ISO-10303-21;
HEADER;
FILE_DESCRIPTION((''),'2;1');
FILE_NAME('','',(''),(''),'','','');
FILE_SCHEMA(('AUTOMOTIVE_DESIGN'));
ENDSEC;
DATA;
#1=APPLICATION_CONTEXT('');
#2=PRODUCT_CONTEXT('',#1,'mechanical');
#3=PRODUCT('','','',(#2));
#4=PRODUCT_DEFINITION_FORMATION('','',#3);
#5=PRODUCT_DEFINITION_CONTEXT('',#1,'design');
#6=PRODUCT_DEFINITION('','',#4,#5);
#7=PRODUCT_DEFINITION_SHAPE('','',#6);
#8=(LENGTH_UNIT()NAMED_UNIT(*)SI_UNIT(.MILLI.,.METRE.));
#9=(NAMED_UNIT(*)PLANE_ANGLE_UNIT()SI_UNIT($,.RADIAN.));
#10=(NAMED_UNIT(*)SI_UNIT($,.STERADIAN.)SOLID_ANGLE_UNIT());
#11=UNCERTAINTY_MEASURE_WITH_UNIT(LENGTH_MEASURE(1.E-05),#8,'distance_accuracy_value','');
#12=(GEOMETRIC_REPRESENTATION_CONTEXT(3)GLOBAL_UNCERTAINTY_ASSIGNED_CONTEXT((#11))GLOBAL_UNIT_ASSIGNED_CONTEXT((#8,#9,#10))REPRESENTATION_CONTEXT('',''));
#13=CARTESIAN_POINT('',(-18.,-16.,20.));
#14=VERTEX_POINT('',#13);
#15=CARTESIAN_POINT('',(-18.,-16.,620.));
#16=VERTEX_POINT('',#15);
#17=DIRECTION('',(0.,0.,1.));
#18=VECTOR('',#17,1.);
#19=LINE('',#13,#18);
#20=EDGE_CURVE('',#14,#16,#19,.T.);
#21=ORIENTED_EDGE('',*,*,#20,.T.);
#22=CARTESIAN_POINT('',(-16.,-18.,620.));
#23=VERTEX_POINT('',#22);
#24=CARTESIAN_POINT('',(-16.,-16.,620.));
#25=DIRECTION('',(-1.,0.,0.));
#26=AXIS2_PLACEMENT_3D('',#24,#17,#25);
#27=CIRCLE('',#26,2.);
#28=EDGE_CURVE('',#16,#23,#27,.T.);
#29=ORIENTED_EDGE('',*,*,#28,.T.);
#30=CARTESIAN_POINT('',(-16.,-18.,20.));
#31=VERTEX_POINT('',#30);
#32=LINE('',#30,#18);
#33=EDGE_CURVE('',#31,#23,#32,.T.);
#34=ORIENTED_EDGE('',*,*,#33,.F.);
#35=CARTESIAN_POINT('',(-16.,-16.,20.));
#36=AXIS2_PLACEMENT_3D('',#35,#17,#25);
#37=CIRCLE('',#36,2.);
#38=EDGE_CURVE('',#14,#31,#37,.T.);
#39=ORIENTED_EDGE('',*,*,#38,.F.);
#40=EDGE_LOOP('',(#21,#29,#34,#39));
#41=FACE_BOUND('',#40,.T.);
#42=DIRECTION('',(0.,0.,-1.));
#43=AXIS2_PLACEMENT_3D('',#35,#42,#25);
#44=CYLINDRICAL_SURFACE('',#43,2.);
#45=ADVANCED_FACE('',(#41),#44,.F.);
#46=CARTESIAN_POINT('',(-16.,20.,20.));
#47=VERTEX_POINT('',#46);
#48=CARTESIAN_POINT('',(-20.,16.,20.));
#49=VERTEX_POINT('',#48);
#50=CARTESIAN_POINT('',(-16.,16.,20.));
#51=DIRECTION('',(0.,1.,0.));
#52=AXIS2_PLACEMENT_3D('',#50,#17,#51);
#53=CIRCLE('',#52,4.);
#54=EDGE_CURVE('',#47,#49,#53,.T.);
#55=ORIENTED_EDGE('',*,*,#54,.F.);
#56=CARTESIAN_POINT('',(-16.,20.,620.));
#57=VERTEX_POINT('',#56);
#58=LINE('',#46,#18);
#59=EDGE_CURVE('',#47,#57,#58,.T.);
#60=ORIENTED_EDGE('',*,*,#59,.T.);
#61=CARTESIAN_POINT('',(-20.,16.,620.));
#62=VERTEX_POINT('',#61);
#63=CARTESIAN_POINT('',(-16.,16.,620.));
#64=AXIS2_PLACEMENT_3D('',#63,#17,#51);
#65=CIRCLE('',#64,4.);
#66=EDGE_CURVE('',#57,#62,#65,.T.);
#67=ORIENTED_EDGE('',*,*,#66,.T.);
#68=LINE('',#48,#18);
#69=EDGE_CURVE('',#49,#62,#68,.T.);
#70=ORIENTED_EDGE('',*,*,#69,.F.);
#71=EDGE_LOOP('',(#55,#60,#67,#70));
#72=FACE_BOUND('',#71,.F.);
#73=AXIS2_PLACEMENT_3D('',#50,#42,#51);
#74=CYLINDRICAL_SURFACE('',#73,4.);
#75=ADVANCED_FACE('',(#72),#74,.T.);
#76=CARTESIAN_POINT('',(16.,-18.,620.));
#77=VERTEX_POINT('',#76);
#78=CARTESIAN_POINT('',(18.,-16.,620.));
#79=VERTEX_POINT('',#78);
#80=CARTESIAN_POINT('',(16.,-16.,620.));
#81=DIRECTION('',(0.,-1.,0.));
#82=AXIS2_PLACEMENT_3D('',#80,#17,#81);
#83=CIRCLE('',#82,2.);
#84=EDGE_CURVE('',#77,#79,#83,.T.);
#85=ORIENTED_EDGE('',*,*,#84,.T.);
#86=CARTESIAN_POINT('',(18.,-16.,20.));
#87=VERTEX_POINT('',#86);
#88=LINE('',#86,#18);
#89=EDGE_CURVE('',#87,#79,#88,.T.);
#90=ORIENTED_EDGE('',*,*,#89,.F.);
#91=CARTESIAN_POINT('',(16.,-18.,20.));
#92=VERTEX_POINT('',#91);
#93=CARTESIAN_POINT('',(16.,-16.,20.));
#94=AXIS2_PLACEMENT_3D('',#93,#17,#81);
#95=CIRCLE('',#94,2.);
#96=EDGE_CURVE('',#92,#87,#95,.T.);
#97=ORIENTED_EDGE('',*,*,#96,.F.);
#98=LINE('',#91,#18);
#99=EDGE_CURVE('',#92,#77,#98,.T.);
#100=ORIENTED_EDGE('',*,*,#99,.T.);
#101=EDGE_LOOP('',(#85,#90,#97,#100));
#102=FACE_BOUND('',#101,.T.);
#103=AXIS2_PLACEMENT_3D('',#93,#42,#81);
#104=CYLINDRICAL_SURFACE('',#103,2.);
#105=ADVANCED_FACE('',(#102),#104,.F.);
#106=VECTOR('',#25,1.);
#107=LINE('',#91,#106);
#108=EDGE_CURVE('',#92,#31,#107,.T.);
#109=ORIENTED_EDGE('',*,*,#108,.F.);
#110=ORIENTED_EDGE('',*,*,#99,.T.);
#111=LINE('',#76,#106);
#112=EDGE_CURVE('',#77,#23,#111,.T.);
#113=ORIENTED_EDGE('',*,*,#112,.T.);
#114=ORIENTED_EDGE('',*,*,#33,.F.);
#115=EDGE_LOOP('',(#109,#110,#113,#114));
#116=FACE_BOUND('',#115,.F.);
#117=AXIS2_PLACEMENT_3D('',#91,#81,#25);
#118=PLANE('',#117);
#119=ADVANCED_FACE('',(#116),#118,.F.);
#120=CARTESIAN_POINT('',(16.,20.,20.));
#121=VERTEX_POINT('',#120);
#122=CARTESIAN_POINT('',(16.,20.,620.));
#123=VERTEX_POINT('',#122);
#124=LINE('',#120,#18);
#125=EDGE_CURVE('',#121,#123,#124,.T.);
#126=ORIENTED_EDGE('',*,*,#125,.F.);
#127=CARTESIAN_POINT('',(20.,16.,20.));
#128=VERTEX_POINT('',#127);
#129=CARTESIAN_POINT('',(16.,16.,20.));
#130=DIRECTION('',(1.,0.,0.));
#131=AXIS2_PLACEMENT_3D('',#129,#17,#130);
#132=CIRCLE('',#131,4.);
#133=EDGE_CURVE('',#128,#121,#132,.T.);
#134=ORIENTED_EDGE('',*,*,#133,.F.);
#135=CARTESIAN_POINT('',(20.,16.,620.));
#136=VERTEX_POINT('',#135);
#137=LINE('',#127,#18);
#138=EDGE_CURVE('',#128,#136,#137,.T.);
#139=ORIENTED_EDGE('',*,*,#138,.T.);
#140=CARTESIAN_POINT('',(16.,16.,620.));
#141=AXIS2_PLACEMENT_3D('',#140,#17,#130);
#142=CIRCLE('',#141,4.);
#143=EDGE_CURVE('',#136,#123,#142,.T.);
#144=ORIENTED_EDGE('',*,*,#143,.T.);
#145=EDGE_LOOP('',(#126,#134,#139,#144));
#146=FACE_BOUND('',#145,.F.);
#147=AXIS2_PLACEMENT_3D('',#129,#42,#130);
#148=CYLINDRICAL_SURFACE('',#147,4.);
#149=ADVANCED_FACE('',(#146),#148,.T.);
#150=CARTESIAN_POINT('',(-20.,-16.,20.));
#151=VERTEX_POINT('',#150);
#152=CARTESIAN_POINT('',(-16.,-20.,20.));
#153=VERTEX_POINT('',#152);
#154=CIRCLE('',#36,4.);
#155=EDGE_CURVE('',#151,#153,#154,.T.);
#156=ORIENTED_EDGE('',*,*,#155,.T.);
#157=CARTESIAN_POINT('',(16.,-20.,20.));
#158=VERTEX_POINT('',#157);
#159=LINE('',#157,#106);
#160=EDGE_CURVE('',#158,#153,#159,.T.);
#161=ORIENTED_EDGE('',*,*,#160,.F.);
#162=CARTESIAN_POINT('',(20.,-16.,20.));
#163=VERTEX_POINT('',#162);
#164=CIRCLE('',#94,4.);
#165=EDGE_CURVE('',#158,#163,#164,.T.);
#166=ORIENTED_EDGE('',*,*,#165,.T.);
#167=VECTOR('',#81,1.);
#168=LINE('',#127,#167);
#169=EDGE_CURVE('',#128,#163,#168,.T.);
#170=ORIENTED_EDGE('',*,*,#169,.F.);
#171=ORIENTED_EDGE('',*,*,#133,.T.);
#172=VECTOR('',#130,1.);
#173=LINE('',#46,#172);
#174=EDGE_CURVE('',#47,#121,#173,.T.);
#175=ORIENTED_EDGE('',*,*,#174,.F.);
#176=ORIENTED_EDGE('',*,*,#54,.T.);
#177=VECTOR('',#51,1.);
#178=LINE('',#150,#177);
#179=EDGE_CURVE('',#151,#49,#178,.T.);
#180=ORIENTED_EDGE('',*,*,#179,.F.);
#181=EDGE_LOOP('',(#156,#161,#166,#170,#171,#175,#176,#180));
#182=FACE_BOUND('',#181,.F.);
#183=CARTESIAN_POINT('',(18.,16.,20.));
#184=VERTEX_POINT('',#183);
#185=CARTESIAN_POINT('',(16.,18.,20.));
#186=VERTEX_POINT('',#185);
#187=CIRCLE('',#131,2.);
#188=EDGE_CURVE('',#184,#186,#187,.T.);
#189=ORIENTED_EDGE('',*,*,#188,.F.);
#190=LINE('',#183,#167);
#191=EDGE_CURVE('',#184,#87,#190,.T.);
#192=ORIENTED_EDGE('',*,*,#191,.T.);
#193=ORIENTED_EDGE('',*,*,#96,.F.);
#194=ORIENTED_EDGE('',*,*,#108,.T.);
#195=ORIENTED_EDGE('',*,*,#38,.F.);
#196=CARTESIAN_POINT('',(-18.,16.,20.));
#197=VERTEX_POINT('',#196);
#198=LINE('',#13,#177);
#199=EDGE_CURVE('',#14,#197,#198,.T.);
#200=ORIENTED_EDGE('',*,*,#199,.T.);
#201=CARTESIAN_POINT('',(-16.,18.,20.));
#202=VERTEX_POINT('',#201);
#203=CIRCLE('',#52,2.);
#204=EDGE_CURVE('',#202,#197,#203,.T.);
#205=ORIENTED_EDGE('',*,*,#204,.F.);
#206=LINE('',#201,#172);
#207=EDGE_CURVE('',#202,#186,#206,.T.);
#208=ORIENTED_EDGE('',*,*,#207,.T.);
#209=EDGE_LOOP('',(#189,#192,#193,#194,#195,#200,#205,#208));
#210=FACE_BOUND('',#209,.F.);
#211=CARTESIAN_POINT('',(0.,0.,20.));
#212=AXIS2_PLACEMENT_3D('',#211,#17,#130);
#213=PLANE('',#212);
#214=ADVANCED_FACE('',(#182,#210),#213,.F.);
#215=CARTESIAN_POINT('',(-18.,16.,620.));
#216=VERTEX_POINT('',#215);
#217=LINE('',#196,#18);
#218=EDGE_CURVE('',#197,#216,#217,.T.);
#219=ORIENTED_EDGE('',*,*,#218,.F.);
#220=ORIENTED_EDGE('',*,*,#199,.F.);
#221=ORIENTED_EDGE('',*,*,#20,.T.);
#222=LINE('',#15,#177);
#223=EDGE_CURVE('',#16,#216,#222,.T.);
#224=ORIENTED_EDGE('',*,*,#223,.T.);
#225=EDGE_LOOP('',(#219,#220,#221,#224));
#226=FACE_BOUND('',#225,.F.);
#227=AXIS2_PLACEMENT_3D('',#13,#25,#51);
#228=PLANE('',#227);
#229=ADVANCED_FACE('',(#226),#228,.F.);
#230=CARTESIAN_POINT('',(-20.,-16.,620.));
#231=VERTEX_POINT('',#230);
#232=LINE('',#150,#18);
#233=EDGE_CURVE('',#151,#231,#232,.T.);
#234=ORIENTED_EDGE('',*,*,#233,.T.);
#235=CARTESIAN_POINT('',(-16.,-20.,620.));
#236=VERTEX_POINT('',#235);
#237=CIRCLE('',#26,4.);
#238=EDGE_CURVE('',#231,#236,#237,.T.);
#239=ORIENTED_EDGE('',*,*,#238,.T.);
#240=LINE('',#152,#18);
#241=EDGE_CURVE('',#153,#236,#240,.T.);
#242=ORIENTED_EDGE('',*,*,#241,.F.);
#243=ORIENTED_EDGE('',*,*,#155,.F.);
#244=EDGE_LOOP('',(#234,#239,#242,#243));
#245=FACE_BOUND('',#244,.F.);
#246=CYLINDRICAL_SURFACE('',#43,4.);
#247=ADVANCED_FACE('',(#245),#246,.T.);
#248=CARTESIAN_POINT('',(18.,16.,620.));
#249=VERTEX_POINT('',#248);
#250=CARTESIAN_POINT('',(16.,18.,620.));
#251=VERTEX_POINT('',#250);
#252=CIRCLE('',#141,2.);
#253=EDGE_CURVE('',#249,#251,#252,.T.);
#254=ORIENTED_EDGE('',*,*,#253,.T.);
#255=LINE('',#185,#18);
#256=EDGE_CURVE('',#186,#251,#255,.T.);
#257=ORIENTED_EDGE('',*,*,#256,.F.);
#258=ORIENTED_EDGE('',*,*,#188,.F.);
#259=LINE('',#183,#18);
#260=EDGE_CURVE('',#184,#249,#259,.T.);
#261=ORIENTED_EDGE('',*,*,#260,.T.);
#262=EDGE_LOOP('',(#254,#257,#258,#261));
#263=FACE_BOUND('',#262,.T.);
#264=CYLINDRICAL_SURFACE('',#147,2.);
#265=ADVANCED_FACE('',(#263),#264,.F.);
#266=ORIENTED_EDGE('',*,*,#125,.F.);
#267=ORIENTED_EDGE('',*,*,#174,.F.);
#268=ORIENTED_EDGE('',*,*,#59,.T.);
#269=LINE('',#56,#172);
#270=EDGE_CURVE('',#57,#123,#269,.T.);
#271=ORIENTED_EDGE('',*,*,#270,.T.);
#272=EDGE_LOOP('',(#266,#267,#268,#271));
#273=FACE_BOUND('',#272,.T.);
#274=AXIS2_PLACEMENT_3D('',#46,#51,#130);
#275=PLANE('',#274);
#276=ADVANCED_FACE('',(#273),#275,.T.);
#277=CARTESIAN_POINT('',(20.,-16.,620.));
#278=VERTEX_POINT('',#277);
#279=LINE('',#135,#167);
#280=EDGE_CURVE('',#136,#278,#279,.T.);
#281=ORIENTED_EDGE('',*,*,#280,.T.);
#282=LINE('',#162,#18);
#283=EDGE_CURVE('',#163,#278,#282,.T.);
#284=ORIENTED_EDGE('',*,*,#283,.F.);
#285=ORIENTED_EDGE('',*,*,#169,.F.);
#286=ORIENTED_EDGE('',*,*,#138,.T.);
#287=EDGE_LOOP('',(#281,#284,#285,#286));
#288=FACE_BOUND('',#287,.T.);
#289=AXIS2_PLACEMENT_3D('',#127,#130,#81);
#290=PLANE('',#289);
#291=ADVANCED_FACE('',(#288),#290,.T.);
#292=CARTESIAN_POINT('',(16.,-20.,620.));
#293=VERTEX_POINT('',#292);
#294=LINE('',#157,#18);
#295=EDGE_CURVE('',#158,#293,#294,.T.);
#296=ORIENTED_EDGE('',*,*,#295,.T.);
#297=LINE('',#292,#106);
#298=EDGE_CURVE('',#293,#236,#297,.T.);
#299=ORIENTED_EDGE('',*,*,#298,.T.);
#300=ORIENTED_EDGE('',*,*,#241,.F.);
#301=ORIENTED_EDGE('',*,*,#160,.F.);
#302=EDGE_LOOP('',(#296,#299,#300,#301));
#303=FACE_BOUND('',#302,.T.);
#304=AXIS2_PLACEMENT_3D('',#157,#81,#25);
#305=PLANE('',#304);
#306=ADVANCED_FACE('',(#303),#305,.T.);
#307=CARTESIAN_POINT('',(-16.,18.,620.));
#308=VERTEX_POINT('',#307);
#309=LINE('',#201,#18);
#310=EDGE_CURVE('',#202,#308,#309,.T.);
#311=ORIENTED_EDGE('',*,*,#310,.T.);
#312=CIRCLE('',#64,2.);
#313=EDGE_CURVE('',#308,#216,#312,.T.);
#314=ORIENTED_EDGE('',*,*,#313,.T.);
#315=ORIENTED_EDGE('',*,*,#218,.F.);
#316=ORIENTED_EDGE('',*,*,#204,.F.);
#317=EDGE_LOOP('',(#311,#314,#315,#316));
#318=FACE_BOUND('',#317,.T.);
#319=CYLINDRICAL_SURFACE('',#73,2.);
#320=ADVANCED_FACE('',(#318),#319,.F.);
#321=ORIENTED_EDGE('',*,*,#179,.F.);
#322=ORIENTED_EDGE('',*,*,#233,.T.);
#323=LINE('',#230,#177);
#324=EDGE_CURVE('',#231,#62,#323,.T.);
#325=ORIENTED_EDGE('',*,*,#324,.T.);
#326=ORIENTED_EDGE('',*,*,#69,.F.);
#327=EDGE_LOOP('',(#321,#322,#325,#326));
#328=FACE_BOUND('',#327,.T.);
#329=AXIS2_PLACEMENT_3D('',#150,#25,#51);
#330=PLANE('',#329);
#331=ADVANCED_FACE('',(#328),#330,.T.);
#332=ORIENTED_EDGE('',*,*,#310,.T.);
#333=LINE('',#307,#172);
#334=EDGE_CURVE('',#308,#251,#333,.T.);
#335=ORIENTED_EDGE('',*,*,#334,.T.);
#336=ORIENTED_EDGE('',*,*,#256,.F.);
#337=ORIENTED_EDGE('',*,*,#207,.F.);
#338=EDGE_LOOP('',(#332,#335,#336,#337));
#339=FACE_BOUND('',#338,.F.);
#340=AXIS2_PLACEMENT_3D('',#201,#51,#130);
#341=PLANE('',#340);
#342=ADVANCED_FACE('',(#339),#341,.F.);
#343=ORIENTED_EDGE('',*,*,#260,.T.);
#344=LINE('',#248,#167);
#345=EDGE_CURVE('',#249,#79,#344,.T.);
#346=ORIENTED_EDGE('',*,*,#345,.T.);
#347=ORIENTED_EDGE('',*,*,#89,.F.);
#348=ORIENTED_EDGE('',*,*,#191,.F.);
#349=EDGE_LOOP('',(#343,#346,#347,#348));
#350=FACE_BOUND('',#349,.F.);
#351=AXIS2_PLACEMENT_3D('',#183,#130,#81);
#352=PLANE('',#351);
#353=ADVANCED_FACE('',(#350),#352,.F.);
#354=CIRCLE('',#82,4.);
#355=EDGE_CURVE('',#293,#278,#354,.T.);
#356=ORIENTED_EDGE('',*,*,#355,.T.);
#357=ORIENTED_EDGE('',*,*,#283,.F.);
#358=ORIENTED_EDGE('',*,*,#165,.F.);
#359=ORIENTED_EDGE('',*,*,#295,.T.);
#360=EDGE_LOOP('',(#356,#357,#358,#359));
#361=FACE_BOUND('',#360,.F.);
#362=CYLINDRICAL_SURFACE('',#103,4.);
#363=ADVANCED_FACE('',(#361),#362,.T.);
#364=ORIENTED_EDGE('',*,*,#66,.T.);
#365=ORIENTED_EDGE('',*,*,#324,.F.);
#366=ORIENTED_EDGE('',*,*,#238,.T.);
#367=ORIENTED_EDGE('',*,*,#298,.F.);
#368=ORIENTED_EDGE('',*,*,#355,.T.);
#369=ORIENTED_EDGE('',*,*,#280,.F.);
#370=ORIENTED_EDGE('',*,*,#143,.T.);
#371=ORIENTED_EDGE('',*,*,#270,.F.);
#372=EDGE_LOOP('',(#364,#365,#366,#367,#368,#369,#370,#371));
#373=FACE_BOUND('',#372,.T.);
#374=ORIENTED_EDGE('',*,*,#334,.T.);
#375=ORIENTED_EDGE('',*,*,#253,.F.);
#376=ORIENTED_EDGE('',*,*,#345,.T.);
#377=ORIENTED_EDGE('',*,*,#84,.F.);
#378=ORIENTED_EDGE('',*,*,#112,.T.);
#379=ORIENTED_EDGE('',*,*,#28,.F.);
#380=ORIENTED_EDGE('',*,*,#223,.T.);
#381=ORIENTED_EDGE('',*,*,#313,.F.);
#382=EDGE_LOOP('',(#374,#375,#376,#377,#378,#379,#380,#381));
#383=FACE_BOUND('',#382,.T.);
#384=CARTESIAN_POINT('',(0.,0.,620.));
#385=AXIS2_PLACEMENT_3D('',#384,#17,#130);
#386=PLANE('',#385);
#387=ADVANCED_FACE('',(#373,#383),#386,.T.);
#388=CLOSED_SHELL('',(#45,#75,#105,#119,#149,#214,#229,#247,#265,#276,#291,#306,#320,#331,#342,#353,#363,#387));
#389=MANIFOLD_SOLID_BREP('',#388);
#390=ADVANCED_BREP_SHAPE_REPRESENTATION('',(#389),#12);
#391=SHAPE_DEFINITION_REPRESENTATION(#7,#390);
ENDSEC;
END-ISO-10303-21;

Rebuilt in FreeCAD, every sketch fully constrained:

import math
import FreeCAD as App
import Part
import Sketcher
from FreeCAD import Vector
Q = App.Units.Quantity

doc = App.newDocument("Part")
body = doc.addObject("PartDesign::Body", "Body")

# Sketch on XY plane
sketch1 = body.newObject("Sketcher::SketchObject", "Sketch")
sketch1.AttachmentSupport = (doc.getObject("XY_Plane"), [""])
sketch1.MapMode = "FlatFace"
sketch1.AttachmentOffset = App.Placement(Vector(0, 0, 20), App.Rotation())
sketch1.addGeometry([
    Part.LineSegment(Vector(-20, 16, 0), Vector(-20, -16, 0)),  # 0
    Part.ArcOfCircle(Part.Circle(Vector(-16, -16, 0), Vector(0, 0, 1), 4), math.radians(180), math.radians(270)),  # 1
    Part.LineSegment(Vector(-16, -20, 0), Vector(16, -20, 0)),  # 2
    Part.ArcOfCircle(Part.Circle(Vector(16, -16, 0), Vector(0, 0, 1), 4), math.radians(-90), math.radians(0)),  # 3
    Part.LineSegment(Vector(20, -16, 0), Vector(20, 16, 0)),  # 4
    Part.ArcOfCircle(Part.Circle(Vector(16, 16, 0), Vector(0, 0, 1), 4), math.radians(0), math.radians(90)),  # 5
    Part.LineSegment(Vector(16, 20, 0), Vector(-16, 20, 0)),  # 6
    Part.ArcOfCircle(Part.Circle(Vector(-16, 16, 0), Vector(0, 0, 1), 4), math.radians(90), math.radians(180)),  # 7
    Part.ArcOfCircle(Part.Circle(Vector(-16, 16, 0), Vector(0, 0, 1), 2), math.radians(90), math.radians(180)),  # 8
    Part.LineSegment(Vector(-16, 18, 0), Vector(16, 18, 0)),  # 9
    Part.ArcOfCircle(Part.Circle(Vector(16, 16, 0), Vector(0, 0, 1), 2), math.radians(0), math.radians(90)),  # 10
    Part.LineSegment(Vector(18, 16, 0), Vector(18, -16, 0)),  # 11
    Part.ArcOfCircle(Part.Circle(Vector(16, -16, 0), Vector(0, 0, 1), 2), math.radians(-90), math.radians(0)),  # 12
    Part.LineSegment(Vector(16, -18, 0), Vector(-16, -18, 0)),  # 13
    Part.ArcOfCircle(Part.Circle(Vector(-16, -16, 0), Vector(0, 0, 1), 2), math.radians(180), math.radians(270)),  # 14
    Part.LineSegment(Vector(-18, -16, 0), Vector(-18, 16, 0)),  # 15
], False)
sketch1.addConstraint([
    Sketcher.Constraint("Tangent", 0, 2, 1, 1),
    Sketcher.Constraint("Tangent", 1, 2, 2, 1),
    Sketcher.Constraint("Tangent", 2, 2, 3, 1),
    Sketcher.Constraint("Tangent", 3, 2, 4, 1),
    Sketcher.Constraint("Tangent", 4, 2, 5, 1),
    Sketcher.Constraint("Tangent", 5, 2, 6, 1),
    Sketcher.Constraint("Tangent", 6, 2, 7, 1),
    Sketcher.Constraint("Tangent", 7, 2, 0, 1),
    Sketcher.Constraint("Tangent", 8, 1, 9, 1),
    Sketcher.Constraint("Tangent", 9, 2, 10, 2),
    Sketcher.Constraint("Tangent", 10, 1, 11, 1),
    Sketcher.Constraint("Tangent", 11, 2, 12, 2),
    Sketcher.Constraint("Tangent", 12, 1, 13, 1),
    Sketcher.Constraint("Tangent", 13, 2, 14, 2),
    Sketcher.Constraint("Tangent", 14, 1, 15, 1),
    Sketcher.Constraint("Tangent", 15, 2, 8, 2),
    Sketcher.Constraint("Vertical", 0),
    Sketcher.Constraint("Horizontal", 2),
    Sketcher.Constraint("Vertical", 4),
    Sketcher.Constraint("Horizontal", 6),
    Sketcher.Constraint("Horizontal", 9),
    Sketcher.Constraint("Vertical", 11),
    Sketcher.Constraint("Horizontal", 13),
    Sketcher.Constraint("Vertical", 15),
    Sketcher.Constraint("Coincident", 8, 3, 7, 3),
    Sketcher.Constraint("Coincident", 10, 3, 5, 3),
    Sketcher.Constraint("Coincident", 12, 3, 3, 3),
    Sketcher.Constraint("Equal", 1, 3),
    Sketcher.Constraint("Equal", 3, 5),
    Sketcher.Constraint("Equal", 5, 7),
    Sketcher.Constraint("Equal", 12, 14),
    Sketcher.Constraint("Symmetric", 1, 3, 5, 3, -1, 1),
    Sketcher.Constraint("Equal", 13, 0),
    Sketcher.Constraint("Radius", 1, Q("4 mm")),
    Sketcher.Constraint("Radius", 8, Q("2 mm")),
    Sketcher.Constraint("DistanceX", 0, 2, -1, 1, Q("20 mm")),
])
pad1 = body.newObject("PartDesign::Pad", "Pad")
pad1.Profile = sketch1
pad1.Length = 600

doc.recompute()
